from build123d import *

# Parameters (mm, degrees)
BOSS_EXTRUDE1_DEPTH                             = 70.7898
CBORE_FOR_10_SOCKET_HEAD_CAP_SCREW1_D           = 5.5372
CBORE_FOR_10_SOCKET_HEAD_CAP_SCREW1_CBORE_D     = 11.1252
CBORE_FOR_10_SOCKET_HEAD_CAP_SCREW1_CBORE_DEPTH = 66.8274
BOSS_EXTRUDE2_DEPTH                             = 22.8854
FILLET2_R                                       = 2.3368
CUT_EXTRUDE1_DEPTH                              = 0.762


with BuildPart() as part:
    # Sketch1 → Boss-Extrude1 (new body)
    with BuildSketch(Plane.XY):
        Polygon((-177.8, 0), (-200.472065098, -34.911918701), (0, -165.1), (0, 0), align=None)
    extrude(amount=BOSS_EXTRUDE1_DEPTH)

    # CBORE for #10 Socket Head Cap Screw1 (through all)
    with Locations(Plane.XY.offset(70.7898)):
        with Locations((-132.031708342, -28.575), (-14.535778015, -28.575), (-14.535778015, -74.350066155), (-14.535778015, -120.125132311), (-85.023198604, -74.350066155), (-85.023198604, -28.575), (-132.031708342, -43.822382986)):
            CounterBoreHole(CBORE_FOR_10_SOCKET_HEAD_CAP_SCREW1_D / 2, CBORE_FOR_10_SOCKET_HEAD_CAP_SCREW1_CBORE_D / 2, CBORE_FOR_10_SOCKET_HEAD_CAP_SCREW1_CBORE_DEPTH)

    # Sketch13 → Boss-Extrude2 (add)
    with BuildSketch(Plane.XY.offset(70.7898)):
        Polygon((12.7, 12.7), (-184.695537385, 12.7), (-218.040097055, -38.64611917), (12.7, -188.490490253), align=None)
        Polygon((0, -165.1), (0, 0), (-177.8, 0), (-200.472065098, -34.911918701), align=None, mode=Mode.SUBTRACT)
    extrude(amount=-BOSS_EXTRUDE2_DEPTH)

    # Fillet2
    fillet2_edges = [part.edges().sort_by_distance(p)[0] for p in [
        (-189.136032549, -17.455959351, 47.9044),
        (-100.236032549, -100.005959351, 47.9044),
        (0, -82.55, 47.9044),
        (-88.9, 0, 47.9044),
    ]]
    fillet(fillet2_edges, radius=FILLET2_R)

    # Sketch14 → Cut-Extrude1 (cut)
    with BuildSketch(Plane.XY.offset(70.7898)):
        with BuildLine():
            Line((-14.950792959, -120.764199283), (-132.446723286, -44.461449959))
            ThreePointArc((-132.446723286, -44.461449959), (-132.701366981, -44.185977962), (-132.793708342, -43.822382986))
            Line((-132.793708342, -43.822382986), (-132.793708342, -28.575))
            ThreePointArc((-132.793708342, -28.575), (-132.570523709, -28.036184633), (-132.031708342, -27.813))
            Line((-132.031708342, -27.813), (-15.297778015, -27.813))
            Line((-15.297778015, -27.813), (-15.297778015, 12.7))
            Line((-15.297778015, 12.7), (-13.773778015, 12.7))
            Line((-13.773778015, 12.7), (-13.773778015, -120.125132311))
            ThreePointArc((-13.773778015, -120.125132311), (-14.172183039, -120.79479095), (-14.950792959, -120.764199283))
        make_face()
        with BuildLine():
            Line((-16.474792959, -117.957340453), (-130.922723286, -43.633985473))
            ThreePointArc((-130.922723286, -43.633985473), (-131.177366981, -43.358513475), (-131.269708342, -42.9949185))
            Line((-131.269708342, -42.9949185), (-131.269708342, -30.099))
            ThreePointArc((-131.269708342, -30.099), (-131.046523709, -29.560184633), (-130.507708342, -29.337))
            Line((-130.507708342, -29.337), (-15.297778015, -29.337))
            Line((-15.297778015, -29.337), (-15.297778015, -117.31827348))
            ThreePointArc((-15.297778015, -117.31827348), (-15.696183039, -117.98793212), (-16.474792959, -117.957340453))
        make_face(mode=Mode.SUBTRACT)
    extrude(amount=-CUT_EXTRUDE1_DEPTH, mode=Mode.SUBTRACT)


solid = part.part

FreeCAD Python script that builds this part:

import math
import FreeCAD as App
import Part
import Sketcher
Q = App.Units.Quantity


def edges_at(feature, points):
    """Names of the edges that pass closest to the given points."""
    edges = feature.Shape.Edges
    near = lambda p: min(range(len(edges)), key=lambda i: edges[i].distToShape(Part.Vertex(*p))[0])
    return sorted({f"Edge{near(p) + 1}" for p in points})

doc = App.newDocument("Part")
body = doc.addObject("PartDesign::Body", "Body")

sketch1 = body.newObject("Sketcher::SketchObject", "Sketch")
sketch1.AttachmentSupport = (doc.getObject("XY_Plane"), [""])
sketch1.MapMode = "FlatFace"
sketch1.addGeometry(Part.LineSegment(App.Vector(-178, 0, 0), App.Vector(-200, -35, 0)), False)
sketch1.addGeometry(Part.LineSegment(App.Vector(-200, -35, 0), App.Vector(0, -165, 0)), False)
sketch1.addGeometry(Part.LineSegment(App.Vector(0, -165, 0), App.Vector(0, 0, 0)), False)
sketch1.addGeometry(Part.LineSegment(App.Vector(0, 0, 0), App.Vector(-178, 0, 0)), False)
sketch1.addConstraint(Sketcher.Constraint("Coincident", 0, 2, 1, 1))
sketch1.addConstraint(Sketcher.Constraint("Coincident", 1, 2, 2, 1))
sketch1.addConstraint(Sketcher.Constraint("Coincident", 2, 2, 3, 1))
sketch1.addConstraint(Sketcher.Constraint("Coincident", 3, 2, 0, 1))
sketch1.addConstraint(Sketcher.Constraint("Vertical", 2))
sketch1.addConstraint(Sketcher.Constraint("Horizontal", 3))
sketch1.addConstraint(Sketcher.Constraint("Coincident", 2, 2, -1, 1))
sketch1.addConstraint(Sketcher.Constraint("Perpendicular", 0, 1))
sketch1.addConstraint(Sketcher.Constraint("DistanceX", 3, 2, 3, 1, Q("7 in")))
sketch1.addConstraint(Sketcher.Constraint("DistanceY", 2, 1, 2, 2, Q("6.5 in")))
sketch1.addConstraint(Sketcher.Constraint("Angle", 0, Q("-123 deg")))
pad1 = body.newObject("PartDesign::Pad", "Pad")
pad1.Profile = sketch1
pad1.Length = Q("2.787 in")

sketch2 = body.newObject("Sketcher::SketchObject", "Sketch001")
sketch2.AttachmentSupport = (doc.getObject("XY_Plane"), [""])
sketch2.MapMode = "FlatFace"
sketch2.AttachmentOffset = App.Placement(App.Vector(0, 0, 2.787 * 25.4), App.Rotation())
sketch2.addGeometry(Part.Circle(App.Vector(-132, -28.6, 0), App.Vector(0, 0, 1), 2.8), False)
sketch2.addGeometry(Part.Circle(App.Vector(-14.5, -28.6, 0), App.Vector(0, 0, 1), 2.8), False)
sketch2.addGeometry(Part.Circle(App.Vector(-14.5, -74.4, 0), App.Vector(0, 0, 1), 2.8), False)
sketch2.addGeometry(Part.Circle(App.Vector(-14.5, -120.1, 0), App.Vector(0, 0, 1), 2.8), False)
sketch2.addGeometry(Part.Circle(App.Vector(-85, -74.4, 0), App.Vector(0, 0, 1), 2.8), False)
sketch2.addGeometry(Part.Circle(App.Vector(-85, -28.6, 0), App.Vector(0, 0, 1), 2.8), False)
sketch2.addGeometry(Part.Circle(App.Vector(-132, -43.8, 0), App.Vector(0, 0, 1), 2.8), False)
sketch2.addConstraint(Sketcher.Constraint("Equal", 0, 1))
sketch2.addConstraint(Sketcher.Constraint("Equal", 1, 2))
sketch2.addConstraint(Sketcher.Constraint("Equal", 2, 3))
sketch2.addConstraint(Sketcher.Constraint("Equal", 3, 4))
sketch2.addConstraint(Sketcher.Constraint("Equal", 4, 5))
sketch2.addConstraint(Sketcher.Constraint("Equal", 5, 6))
sketch2.addConstraint(Sketcher.Constraint("Horizontal", 0, 3, 1, 3))
sketch2.addConstraint(Sketcher.Constraint("Horizontal", 2, 3, 4, 3))
sketch2.addConstraint(Sketcher.Constraint("Horizontal", 1, 3, 5, 3))
sketch2.addConstraint(Sketcher.Constraint("Vertical", 1, 3, 2, 3))
sketch2.addConstraint(Sketcher.Constraint("Vertical", 2, 3, 3, 3))
sketch2.addConstraint(Sketcher.Constraint("Vertical", 4, 3, 5, 3))
sketch2.addConstraint(Sketcher.Constraint("Vertical", 0, 3, 6, 3))
sketch2.addConstraint(Sketcher.Constraint("Diameter", 0, Q("0.218 in")))
sketch2.addConstraint(Sketcher.Constraint("DistanceY", 0, 3, -1, 1, Q("1.125 in")))
sketch2.addConstraint(Sketcher.Constraint("DistanceX", 4, 3, -1, 1, Q("85.023199 mm")))
sketch2.addConstraint(Sketcher.Constraint("DistanceX", 0, 3, -1, 1, Q("132.031708 mm")))
sketch2.addConstraint(Sketcher.Constraint("DistanceX", 1, 3, -1, 1, Q("14.535778 mm")))
sketch2.addConstraint(Sketcher.Constraint("DistanceY", 2, 3, -1, 1, Q("74.350066 mm")))
sketch2.addConstraint(Sketcher.Constraint("DistanceY", 3, 3, -1, 1, Q("120.125132 mm")))
sketch2.addConstraint(Sketcher.Constraint("DistanceY", 6, 3, -1, 1, Q("43.822383 mm")))
doc.recompute()
hole = body.newObject("PartDesign::Hole", "Hole")
hole.Profile = sketch2
hole.ThreadType = "None"
hole.Diameter = Q("0.218 in")
hole.DepthType = "ThroughAll"
hole.HoleCutType = "Counterbore"
hole.HoleCutDiameter = Q("0.438 in")
hole.HoleCutDepth = Q("2.631 in")

sketch3 = body.newObject("Sketcher::SketchObject", "Sketch002")
sketch3.AttachmentSupport = (doc.getObject("XY_Plane"), [""])
sketch3.MapMode = "FlatFace"
sketch3.AttachmentOffset = App.Placement(App.Vector(0, 0, 2.787 * 25.4), App.Rotation())
sketch3.addGeometry(Part.LineSegment(App.Vector(13, 13, 0), App.Vector(-185, 13, 0)), False)
sketch3.addGeometry(Part.LineSegment(App.Vector(-185, 13, 0), App.Vector(-218, -39, 0)), False)
sketch3.addGeometry(Part.LineSegment(App.Vector(-218, -39, 0), App.Vector(13, -188, 0)), False)
sketch3.addGeometry(Part.LineSegment(App.Vector(13, -188, 0), App.Vector(13, 13, 0)), False)
sketch3.addGeometry(Part.LineSegment(App.Vector(0, 0, 0), App.Vector(0, -165, 0)), False)
sketch3.addGeometry(Part.LineSegment(App.Vector(0, -165, 0), App.Vector(-200, -35, 0)), False)
sketch3.addGeometry(Part.LineSegment(App.Vector(-200, -35, 0), App.Vector(-178, 0, 0)), False)
sketch3.addGeometry(Part.LineSegment(App.Vector(-178, 0, 0), App.Vector(0, 0, 0)), False)
sketch3.addConstraint(Sketcher.Constraint("Coincident", 0, 2, 1, 1))
sketch3.addConstraint(Sketcher.Constraint("Coincident", 1, 2, 2, 1))
sketch3.addConstraint(Sketcher.Constraint("Coincident", 2, 2, 3, 1))
sketch3.addConstraint(Sketcher.Constraint("Coincident", 3, 2, 0, 1))
sketch3.addConstraint(Sketcher.Constraint("Coincident", 4, 2, 5, 1))
sketch3.addConstraint(Sketcher.Constraint("Coincident", 5, 2, 6, 1))
sketch3.addConstraint(Sketcher.Constraint("Coincident", 6, 2, 7, 1))
sketch3.addConstraint(Sketcher.Constraint("Coincident", 7, 2, 4, 1))
sketch3.addConstraint(Sketcher.Constraint("Horizontal", 0))
sketch3.addConstraint(Sketcher.Constraint("Vertical", 3))
sketch3.addConstraint(Sketcher.Constraint("Vertical", 4))
sketch3.addConstraint(Sketcher.Constraint("Horizontal", 7))
sketch3.addConstraint(Sketcher.Constraint("Coincident", 7, 2, -1, 1))
sketch3.addConstraint(Sketcher.Constraint("Perpendicular", 1, 2))
sketch3.addConstraint(Sketcher.Constraint("Parallel", 2, 5))
sketch3.addConstraint(Sketcher.Constraint("Perpendicular", 5, 6))
sketch3.addConstraint(Sketcher.Constraint("DistanceX", 7, 1, 7, 2, Q("7 in")))
sketch3.addConstraint(Sketcher.Constraint("DistanceY", 4, 2, 4, 1, Q("6.5 in")))
sketch3.addConstraint(Sketcher.Constraint("Angle", 1, Q("-123 deg")))
sketch3.addConstraint(Sketcher.Constraint("DistanceY", 4, 2, 3, 2, Q("7 in")))
sketch3.addConstraint(Sketcher.Constraint("DistanceX", -1, 1, 2, 2, Q("0.5 in")))
sketch3.addConstraint(Sketcher.Constraint("DistanceY", 3, 1, 3, 2, Q("201.19049 mm")))
sketch3.addConstraint(Sketcher.Constraint("DistanceY", 1, 2, 5, 2, Q("3.7342 mm")))
pad2 = body.newObject("PartDesign::Pad", "Pad001")
pad2.Profile = sketch3
pad2.Length = Q("0.901 in")
pad2.Reversed = True
doc.recompute()

fillet = body.newObject("PartDesign::Fillet", "Fillet")
fillet.Base = (pad2, edges_at(pad2, [
    (-189.136, -17.456, 47.904),
    (-100.236, -100.006, 47.904),
    (0, -82.55, 47.904),
    (-88.9, 0, 47.904),
]))
fillet.Radius = Q("0.092 in")

sketch4 = body.newObject("Sketcher::SketchObject", "Sketch003")
sketch4.AttachmentSupport = (doc.getObject("XY_Plane"), [""])
sketch4.MapMode = "FlatFace"
sketch4.AttachmentOffset = App.Placement(App.Vector(0, 0, 2.787 * 25.4), App.Rotation())
sketch4.addGeometry(Part.LineSegment(App.Vector(-132.4, -44.5, 0), App.Vector(-15, -120.8, 0)), False)
sketch4.addGeometry(Part.ArcOfCircle(Part.Circle(App.Vector(-14.5, -120.1, 0), App.Vector(0, 0, 1), 0.8), math.radians(-123), math.radians(0)), False)
sketch4.addGeometry(Part.LineSegment(App.Vector(-13.8, -120.1, 0), App.Vector(-13.8, 12.7, 0)), False)
sketch4.addGeometry(Part.LineSegment(App.Vector(-13.8, 12.7, 0), App.Vector(-15.3, 12.7, 0)), False)
sketch4.addGeometry(Part.LineSegment(App.Vector(-15.3, 12.7, 0), App.Vector(-15.3, -27.8, 0)), False)
sketch4.addGeometry(Part.LineSegment(App.Vector(-15.3, -27.8, 0), App.Vector(-132, -27.8, 0)), False)
sketch4.addGeometry(Part.ArcOfCircle(Part.Circle(App.Vector(-132, -28.6, 0), App.Vector(0, 0, 1), 0.8), math.radians(90), math.radians(180)), False)
sketch4.addGeometry(Part.LineSegment(App.Vector(-132.8, -28.6, 0), App.Vector(-132.8, -43.8, 0)), False)
sketch4.addGeometry(Part.ArcOfCircle(Part.Circle(App.Vector(-132, -43.8, 0), App.Vector(0, 0, 1), 0.8), math.radians(-180), math.radians(-123)), False)
sketch4.addGeometry(Part.LineSegment(App.Vector(-16.5, -118, 0), App.Vector(-130.9, -43.6, 0)), False)
sketch4.addGeometry(Part.ArcOfCircle(Part.Circle(App.Vector(-130.5, -43, 0), App.Vector(0, 0, 1), 0.8), math.radians(-180), math.radians(-123)), False)
sketch4.addGeometry(Part.LineSegment(App.Vector(-131.3, -43, 0), App.Vector(-131.3, -30.1, 0)), False)
sketch4.addGeometry(Part.ArcOfCircle(Part.Circle(App.Vector(-130.5, -30.1, 0), App.Vector(0, 0, 1), 0.8), math.radians(90), math.radians(180)), False)
sketch4.addGeometry(Part.LineSegment(App.Vector(-130.5, -29.3, 0), App.Vector(-15.3, -29.3, 0)), False)
sketch4.addGeometry(Part.LineSegment(App.Vector(-15.3, -29.3, 0), App.Vector(-15.3, -117.3, 0)), False)
sketch4.addGeometry(Part.ArcOfCircle(Part.Circle(App.Vector(-16.1, -117.3, 0), App.Vector(0, 0, 1), 0.8), math.radians(-123), math.radians(0)), False)
sketch4.addConstraint(Sketcher.Constraint("Tangent", 0, 2, 1, 1))
sketch4.addConstraint(Sketcher.Constraint("Tangent", 1, 2, 2, 1))
sketch4.addConstraint(Sketcher.Constraint("Coincident", 2, 2, 3, 1))
sketch4.addConstraint(Sketcher.Constraint("Coincident", 3, 2, 4, 1))
sketch4.addConstraint(Sketcher.Constraint("Coincident", 4, 2, 5, 1))
sketch4.addConstraint(Sketcher.Constraint("Tangent", 5, 2, 6, 1))
sketch4.addConstraint(Sketcher.Constraint("Tangent", 6, 2, 7, 1))
sketch4.addConstraint(Sketcher.Constraint("Tangent", 7, 2, 8, 1))
sketch4.addConstraint(Sketcher.Constraint("Tangent", 8, 2, 0, 1))
sketch4.addConstraint(Sketcher.Constraint("Tangent", 9, 2, 10, 2))
sketch4.addConstraint(Sketcher.Constraint("Tangent", 10, 1, 11, 1))
sketch4.addConstraint(Sketcher.Constraint("Tangent", 11, 2, 12, 2))
sketch4.addConstraint(Sketcher.Constraint("Tangent", 12, 1, 13, 1))
sketch4.addConstraint(Sketcher.Constraint("Coincident", 13, 2, 14, 1))
sketch4.addConstraint(Sketcher.Constraint("Tangent", 14, 2, 15, 2))
sketch4.addConstraint(Sketcher.Constraint("Tangent", 15, 1, 9, 1))
sketch4.addConstraint(Sketcher.Constraint("Vertical", 2))
sketch4.addConstraint(Sketcher.Constraint("Horizontal", 3))
sketch4.addConstraint(Sketcher.Constraint("Vertical", 4))
sketch4.addConstraint(Sketcher.Constraint("Horizontal", 5))
sketch4.addConstraint(Sketcher.Constraint("Vertical", 7))
sketch4.addConstraint(Sketcher.Constraint("Vertical", 11))
sketch4.addConstraint(Sketcher.Constraint("Horizontal", 13))
sketch4.addConstraint(Sketcher.Constraint("Vertical", 14))
sketch4.addConstraint(Sketcher.Constraint("Equal", 1, 6))
sketch4.addConstraint(Sketcher.Constraint("Equal", 6, 8))
sketch4.addConstraint(Sketcher.Constraint("Equal", 8, 10))
sketch4.addConstraint(Sketcher.Constraint("Equal", 10, 12))
sketch4.addConstraint(Sketcher.Constraint("Equal", 12, 15))
sketch4.addConstraint(Sketcher.Constraint("Parallel", 0, 9))
sketch4.addConstraint(Sketcher.Constraint("Vertical", 4, 2, 13, 2))
sketch4.addConstraint(Sketcher.Constraint("Radius", 1, Q("0.03 in")))
sketch4.addConstraint(Sketcher.Constraint("Angle", 0, Q("-33 deg")))
sketch4.addConstraint(Sketcher.Constraint("DistanceX", 3, 2, 3, 1, Q("0.06 in")))
sketch4.addConstraint(Sketcher.Constraint("DistanceY", -1, 1, 2, 2, Q("0.5 in")))
sketch4.addConstraint(Sketcher.Constraint("DistanceY", 4, 2, 4, 1, Q("1.595 in")))
sketch4.addConstraint(Sketcher.Constraint("DistanceX", 8, 3, 10, 3, Q("0.06 in")))
sketch4.addConstraint(Sketcher.Constraint("DistanceY", 12, 3, 6, 3, Q("0.06 in")))
sketch4.addConstraint(Sketcher.Constraint("DistanceX", 5, 2, 5, 1, Q("116.73393 mm")))
sketch4.addConstraint(Sketcher.Constraint("DistanceY", 11, 1, 11, 2, Q("12.895918 mm")))
sketch4.addConstraint(Sketcher.Constraint("DistanceY", 0, 2, -1, 1, Q("120.764199 mm")))
sketch4.addConstraint(Sketcher.Constraint("DistanceX", 1, 3, -1, 1, Q("14.535778 mm")))
pocket1 = body.newObject("PartDesign::Pocket", "Pocket")
pocket1.Profile = sketch4
pocket1.Length = Q("0.03 in")

doc.recompute()
